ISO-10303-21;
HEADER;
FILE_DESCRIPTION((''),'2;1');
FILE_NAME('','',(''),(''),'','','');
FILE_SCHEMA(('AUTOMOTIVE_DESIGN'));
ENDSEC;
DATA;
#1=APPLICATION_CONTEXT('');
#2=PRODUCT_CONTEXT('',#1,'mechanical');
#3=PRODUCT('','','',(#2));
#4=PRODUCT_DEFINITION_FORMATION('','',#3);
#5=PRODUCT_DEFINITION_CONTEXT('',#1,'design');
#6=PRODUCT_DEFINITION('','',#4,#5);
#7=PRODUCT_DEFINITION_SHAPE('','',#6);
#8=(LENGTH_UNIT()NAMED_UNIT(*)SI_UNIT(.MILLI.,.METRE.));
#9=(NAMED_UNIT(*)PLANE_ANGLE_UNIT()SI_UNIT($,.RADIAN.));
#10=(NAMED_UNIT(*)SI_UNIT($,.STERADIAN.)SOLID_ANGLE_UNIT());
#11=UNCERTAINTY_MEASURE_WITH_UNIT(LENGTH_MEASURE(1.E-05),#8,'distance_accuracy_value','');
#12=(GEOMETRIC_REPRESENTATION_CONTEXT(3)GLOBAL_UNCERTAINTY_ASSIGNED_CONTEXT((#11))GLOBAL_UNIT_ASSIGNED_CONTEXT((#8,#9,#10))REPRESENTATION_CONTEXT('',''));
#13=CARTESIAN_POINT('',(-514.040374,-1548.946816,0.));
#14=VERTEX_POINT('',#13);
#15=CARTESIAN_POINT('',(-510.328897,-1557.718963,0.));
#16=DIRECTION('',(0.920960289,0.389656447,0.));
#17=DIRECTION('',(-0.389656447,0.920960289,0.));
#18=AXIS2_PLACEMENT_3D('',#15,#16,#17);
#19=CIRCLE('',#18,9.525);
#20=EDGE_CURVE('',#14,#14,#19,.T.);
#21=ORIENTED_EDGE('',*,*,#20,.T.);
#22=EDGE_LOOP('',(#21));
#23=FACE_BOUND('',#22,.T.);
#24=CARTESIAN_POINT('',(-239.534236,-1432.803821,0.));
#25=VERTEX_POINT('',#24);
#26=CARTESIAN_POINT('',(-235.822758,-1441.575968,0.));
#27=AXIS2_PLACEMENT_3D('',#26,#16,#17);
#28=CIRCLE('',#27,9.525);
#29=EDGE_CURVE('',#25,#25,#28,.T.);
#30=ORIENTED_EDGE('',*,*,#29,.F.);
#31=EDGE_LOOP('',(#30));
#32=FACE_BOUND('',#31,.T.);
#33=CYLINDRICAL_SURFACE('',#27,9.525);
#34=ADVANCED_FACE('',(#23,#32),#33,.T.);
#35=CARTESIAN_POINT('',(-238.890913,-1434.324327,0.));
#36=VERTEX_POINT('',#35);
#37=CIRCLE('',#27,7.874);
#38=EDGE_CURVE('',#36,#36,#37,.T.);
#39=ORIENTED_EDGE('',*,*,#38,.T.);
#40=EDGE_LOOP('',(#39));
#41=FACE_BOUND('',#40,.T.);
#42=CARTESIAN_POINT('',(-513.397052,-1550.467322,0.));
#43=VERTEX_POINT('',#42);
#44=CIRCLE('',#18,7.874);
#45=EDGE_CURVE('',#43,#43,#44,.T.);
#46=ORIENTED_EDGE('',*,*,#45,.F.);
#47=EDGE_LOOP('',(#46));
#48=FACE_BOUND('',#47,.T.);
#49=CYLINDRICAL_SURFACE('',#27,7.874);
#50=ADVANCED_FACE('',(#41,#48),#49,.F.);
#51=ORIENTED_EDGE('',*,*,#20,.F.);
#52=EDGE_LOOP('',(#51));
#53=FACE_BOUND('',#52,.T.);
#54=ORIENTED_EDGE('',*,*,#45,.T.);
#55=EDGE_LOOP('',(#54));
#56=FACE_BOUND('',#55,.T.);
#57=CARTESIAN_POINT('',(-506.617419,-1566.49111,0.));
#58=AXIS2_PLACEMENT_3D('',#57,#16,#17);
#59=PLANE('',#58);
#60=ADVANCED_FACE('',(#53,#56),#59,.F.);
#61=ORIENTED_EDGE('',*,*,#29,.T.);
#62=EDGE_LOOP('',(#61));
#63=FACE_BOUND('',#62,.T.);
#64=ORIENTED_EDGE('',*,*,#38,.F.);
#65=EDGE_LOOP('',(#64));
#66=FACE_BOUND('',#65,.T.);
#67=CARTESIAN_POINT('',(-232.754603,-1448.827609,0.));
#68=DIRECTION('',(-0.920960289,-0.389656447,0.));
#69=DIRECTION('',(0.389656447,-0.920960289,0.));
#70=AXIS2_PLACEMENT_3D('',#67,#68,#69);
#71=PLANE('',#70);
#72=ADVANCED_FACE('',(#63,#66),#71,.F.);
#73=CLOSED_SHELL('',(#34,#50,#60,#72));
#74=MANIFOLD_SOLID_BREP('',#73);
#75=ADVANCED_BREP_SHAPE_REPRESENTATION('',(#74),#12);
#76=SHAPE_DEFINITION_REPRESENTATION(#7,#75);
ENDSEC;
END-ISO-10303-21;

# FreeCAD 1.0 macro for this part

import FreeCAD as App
import Part
import Sketcher

V = App.Vector
Q = App.Units.Quantity


def add_polygon(sketch, points):
    """Adds a closed chain of lines whose ends are joined by coincident constraints."""
    first, n = sketch.GeometryCount, len(points)
    for a, b in zip(points, points[1:] + points[:1]):
        sketch.addGeometry(Part.LineSegment(App.Vector(*a, 0), App.Vector(*b, 0)), False)
    for i in range(n):
        sketch.addConstraint(Sketcher.Constraint("Coincident", first + i, 2, first + (i + 1) % n, 1))

doc = App.newDocument("Part")
body = doc.addObject("PartDesign::Body", "Body")

# Sketch on XY plane
sketch1 = body.newObject("Sketcher::SketchObject", "Sketch")
sketch1.AttachmentSupport = (doc.getObject("XY_Plane"), [""])
sketch1.MapMode = "FlatFace"
add_polygon(sketch1, [(-232.1, -1450.3), (-232.8, -1448.8), (-507.3, -1565), (-506.6, -1566.5)])  # lines 0-3
sketch1.addGeometry(Part.LineSegment(V(-235.8, -1441.6, 0), V(-510.3, -1557.7, 0)), True)  # axis
sketch1.addConstraint(Sketcher.Constraint("Perpendicular", 0, 1))
sketch1.addConstraint(Sketcher.Constraint("Perpendicular", 1, 2))
sketch1.addConstraint(Sketcher.Constraint("Perpendicular", 2, 3))
sketch1.addConstraint(Sketcher.Constraint("Parallel", 3, 4))
sketch1.addConstraint(Sketcher.Constraint("Equal", 3, 4))
sketch1.addConstraint(Sketcher.Constraint("Distance", 0, Q("0.065 in")))
sketch1.addConstraint(Sketcher.Constraint("DistanceY", 2, 2, 0, 2, Q("117.663501 mm")))
sketch1.addConstraint(Sketcher.Constraint("Distance", 1, Q("298.065119 mm")))
sketch1.addConstraint(Sketcher.Constraint("DistanceY", 0, 2, -1, 1, Q("1448.827609 mm")))
sketch1.addConstraint(Sketcher.Constraint("DistanceX", 1, 2, -1, 1, Q("507.260742 mm")))
sketch1.addConstraint(Sketcher.Constraint("DistanceX", 4, 1, -1, 1, Q("235.822758 mm")))
sketch1.addConstraint(Sketcher.Constraint("DistanceY", 0, 2, 4, 1, Q("7.251641 mm")))
revolution = body.newObject("PartDesign::Revolution", "Revolution")
revolution.Profile = sketch1
revolution.ReferenceAxis = (sketch1, ["Axis0"])
revolution.Angle = 360

doc.recompute()
